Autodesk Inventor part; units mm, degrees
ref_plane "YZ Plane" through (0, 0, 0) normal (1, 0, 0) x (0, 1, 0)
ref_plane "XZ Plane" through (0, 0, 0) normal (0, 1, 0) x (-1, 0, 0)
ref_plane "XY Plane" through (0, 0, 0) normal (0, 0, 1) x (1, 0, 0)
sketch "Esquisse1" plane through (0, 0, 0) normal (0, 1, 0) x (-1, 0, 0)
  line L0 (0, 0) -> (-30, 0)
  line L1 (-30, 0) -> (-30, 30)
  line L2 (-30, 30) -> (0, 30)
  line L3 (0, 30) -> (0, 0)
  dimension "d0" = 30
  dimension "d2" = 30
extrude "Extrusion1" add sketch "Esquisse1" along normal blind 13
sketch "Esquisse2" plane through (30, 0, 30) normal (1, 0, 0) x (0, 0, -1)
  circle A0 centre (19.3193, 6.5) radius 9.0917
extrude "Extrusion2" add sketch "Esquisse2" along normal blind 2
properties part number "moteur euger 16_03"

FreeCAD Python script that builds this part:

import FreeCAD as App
import Part
import Sketcher

V = App.Vector


def add_polygon(sketch, points):
    """Adds a closed chain of lines whose ends are joined by coincident constraints."""
    first, n = sketch.GeometryCount, len(points)
    for a, b in zip(points, points[1:] + points[:1]):
        sketch.addGeometry(Part.LineSegment(App.Vector(*a, 0), App.Vector(*b, 0)), False)
    for i in range(n):
        sketch.addConstraint(Sketcher.Constraint("Coincident", first + i, 2, first + (i + 1) % n, 1))

doc = App.newDocument("Part")
body = doc.addObject("PartDesign::Body", "Body")

# Sketch on XZ plane
sketch1 = body.newObject("Sketcher::SketchObject", "Sketch")
sketch1.AttachmentSupport = (doc.getObject("XZ_Plane"), [""])
sketch1.MapMode = "FlatFace"
add_polygon(sketch1, [(30, 0), (0, 0), (0, 30), (30, 30)])  # lines 0-3
sketch1.addConstraint([
    Sketcher.Constraint("Horizontal", 0),
    Sketcher.Constraint("Vertical", 1),
    Sketcher.Constraint("Horizontal", 2),
    Sketcher.Constraint("Vertical", 3),
    Sketcher.Constraint("Coincident", 0, 2, -1, 1),
    Sketcher.Constraint("Equal", 2, 1),
    Sketcher.Constraint("DistanceX", 0, 2, 0, 1, 30.0),
])
pad1 = body.newObject("PartDesign::Pad", "Pad")
pad1.Profile = sketch1
pad1.Length = 13
pad1.Reversed = True

# Sketch on YZ plane
sketch2 = body.newObject("Sketcher::SketchObject", "Sketch001")
sketch2.AttachmentSupport = (doc.getObject("YZ_Plane"), [""])
sketch2.MapMode = "FlatFace"
sketch2.AttachmentOffset = App.Placement(V(0, 0, 30), App.Rotation())
sketch2.addGeometry(Part.Circle(V(6, 11, 0), V(0, 0, 1), 9), False)
sketch2.addConstraint([
    Sketcher.Constraint("Diameter", 0, 18.1834),
    Sketcher.Constraint("DistanceX", -1, 1, 0, 3, 6.5),
    Sketcher.Constraint("DistanceY", -1, 1, 0, 3, 10.6807),
])
pad2 = body.newObject("PartDesign::Pad", "Pad001")
pad2.Profile = sketch2
pad2.Length = 2

doc.recompute()
